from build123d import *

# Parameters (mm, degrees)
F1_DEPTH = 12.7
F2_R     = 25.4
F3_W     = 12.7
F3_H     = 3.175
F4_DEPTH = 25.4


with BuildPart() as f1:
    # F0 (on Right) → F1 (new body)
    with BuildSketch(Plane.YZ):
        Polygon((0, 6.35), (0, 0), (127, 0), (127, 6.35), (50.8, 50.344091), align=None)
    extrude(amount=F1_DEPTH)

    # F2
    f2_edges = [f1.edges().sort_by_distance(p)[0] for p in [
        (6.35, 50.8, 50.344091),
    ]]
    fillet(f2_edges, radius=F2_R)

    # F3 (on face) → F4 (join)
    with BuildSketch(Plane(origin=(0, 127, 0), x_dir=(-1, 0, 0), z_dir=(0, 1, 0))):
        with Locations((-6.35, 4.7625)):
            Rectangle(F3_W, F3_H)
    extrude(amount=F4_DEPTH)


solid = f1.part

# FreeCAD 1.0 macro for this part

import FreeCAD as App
import Part
import Sketcher
Q = App.Units.Quantity


def edges_at(feature, points):
    """Names of the edges that pass closest to the given points."""
    edges = feature.Shape.Edges
    near = lambda p: min(range(len(edges)), key=lambda i: edges[i].distToShape(Part.Vertex(*p))[0])
    return sorted({f"Edge{near(p) + 1}" for p in points})


def add_polygon(sketch, points):
    """Adds a closed chain of lines whose ends are joined by coincident constraints."""
    first, n = sketch.GeometryCount, len(points)
    for a, b in zip(points, points[1:] + points[:1]):
        sketch.addGeometry(Part.LineSegment(App.Vector(*a, 0), App.Vector(*b, 0)), False)
    for i in range(n):
        sketch.addConstraint(Sketcher.Constraint("Coincident", first + i, 2, first + (i + 1) % n, 1))

doc = App.newDocument("Part")
params = doc.addObject("Spreadsheet::Sheet", "Params")
for row, (alias, value) in enumerate([
    ("sketch1_width", "5 in"),
    ("sketch1_height", "0.25 in"),
    ("pad1_length", "0.5 in"),
    ("fillet_radius", "1 in"),
    ("sketch2_width", "0.5 in"),
    ("sketch2_height", "0.125 in"),
    ("pad2_length", "1 in"),
], start=1):
    params.set(f"A{row}", alias)
    params.set(f"B{row}", "=" + value)
    params.setAlias(f"B{row}", alias)

body = doc.addObject("PartDesign::Body", "Body")

# Sketch on YZ plane
sketch1 = body.newObject("Sketcher::SketchObject", "Sketch")
sketch1.AttachmentSupport = (doc.getObject("YZ_Plane"), [""])
sketch1.MapMode = "FlatFace"
add_polygon(sketch1, [(0, 6), (0, 0), (127, 0), (127, 6), (51, 50)])  # lines 0-4
sketch1.addConstraint([
    Sketcher.Constraint("Vertical", 0),
    Sketcher.Constraint("Horizontal", 1),
    Sketcher.Constraint("Vertical", 2),
    Sketcher.Constraint("Coincident", 0, 2, -1, 1),
    Sketcher.Constraint("Horizontal", 2, 2, 4, 2),
    Sketcher.Constraint("DistanceX", 1, 1, 1, 2, Q("5 in")),
    Sketcher.Constraint("DistanceX", -1, 1, 3, 2, Q("2 in")),
    Sketcher.Constraint("Angle", 3, Q("150 deg")),
    Sketcher.Constraint("DistanceY", 0, 2, 0, 1, Q("0.25 in")),
])
sketch1.setExpression("Constraints[10]", "Params.sketch1_width")
sketch1.setExpression("Constraints[13]", "Params.sketch1_height")
pad1 = body.newObject("PartDesign::Pad", "Pad")
pad1.Profile = sketch1
pad1.setExpression("Length", "Params.pad1_length")
doc.recompute()

fillet = body.newObject("PartDesign::Fillet", "Fillet")
fillet.Base = (pad1, edges_at(pad1, [(6.35, 50.8, 50.344)]))
fillet.setExpression("Radius", "Params.fillet_radius")

# Sketch on XZ plane
sketch2 = body.newObject("Sketcher::SketchObject", "Sketch001")
sketch2.AttachmentSupport = (doc.getObject("XZ_Plane"), [""])
sketch2.MapMode = "FlatFace"
sketch2.AttachmentOffset = App.Placement(App.Vector(0, 0, -5 * 25.4), App.Rotation())
add_polygon(sketch2, [(12.7, 6.3), (12.7, 3.2), (0, 3.2), (0, 6.3)])  # lines 0-3
sketch2.addConstraint([
    Sketcher.Constraint("Vertical", 0),
    Sketcher.Constraint("Horizontal", 1),
    Sketcher.Constraint("Vertical", 2),
    Sketcher.Constraint("Horizontal", 3),
    Sketcher.Constraint("PointOnObject", 1, 2, -2),
    Sketcher.Constraint("DistanceX", 1, 2, 1, 1, Q("0.5 in")),
    Sketcher.Constraint("DistanceY", 0, 2, 0, 1, Q("0.125 in")),
    Sketcher.Constraint("DistanceY", -1, 1, 2, 2, Q("0.25 in")),
])
sketch2.setExpression("Constraints[9]", "Params.sketch2_width")
sketch2.setExpression("Constraints[10]", "Params.sketch2_height")
pad2 = body.newObject("PartDesign::Pad", "Pad001")
pad2.Profile = sketch2
pad2.setExpression("Length", "Params.pad2_length")
pad2.Reversed = True

doc.recompute()
